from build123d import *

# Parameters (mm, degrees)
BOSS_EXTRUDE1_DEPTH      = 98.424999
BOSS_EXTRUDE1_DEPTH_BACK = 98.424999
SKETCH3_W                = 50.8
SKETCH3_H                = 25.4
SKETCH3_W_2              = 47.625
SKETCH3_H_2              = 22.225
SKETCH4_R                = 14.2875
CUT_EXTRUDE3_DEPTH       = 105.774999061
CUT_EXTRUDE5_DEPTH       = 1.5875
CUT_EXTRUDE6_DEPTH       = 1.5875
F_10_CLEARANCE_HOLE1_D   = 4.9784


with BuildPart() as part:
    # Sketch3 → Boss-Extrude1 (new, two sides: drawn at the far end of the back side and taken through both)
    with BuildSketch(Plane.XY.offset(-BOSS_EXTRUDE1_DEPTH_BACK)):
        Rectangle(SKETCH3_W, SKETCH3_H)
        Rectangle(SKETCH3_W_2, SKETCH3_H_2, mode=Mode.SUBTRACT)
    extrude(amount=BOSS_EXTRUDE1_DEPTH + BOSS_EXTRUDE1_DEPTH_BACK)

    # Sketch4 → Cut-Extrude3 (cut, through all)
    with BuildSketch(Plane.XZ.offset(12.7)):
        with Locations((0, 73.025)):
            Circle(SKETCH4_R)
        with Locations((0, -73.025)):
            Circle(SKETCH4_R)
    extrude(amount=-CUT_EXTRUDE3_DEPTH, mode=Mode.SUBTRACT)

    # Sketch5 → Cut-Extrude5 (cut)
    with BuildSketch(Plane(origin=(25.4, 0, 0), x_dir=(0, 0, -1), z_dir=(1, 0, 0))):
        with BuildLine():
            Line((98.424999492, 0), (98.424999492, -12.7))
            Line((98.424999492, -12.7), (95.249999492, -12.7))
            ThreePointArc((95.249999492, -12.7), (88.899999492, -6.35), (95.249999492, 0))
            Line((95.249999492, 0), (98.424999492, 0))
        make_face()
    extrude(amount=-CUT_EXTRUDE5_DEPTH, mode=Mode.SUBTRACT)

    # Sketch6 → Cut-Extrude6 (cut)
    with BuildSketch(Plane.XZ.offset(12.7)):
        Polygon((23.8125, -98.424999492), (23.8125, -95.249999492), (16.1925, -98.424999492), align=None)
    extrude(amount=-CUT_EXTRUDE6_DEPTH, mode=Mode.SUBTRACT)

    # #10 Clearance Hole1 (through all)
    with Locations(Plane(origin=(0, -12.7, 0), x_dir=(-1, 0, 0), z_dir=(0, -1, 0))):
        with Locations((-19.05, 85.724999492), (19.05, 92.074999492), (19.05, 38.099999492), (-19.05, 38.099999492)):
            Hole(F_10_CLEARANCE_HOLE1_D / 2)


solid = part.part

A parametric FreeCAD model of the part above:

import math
import FreeCAD as App
import Part
import Sketcher
from FreeCAD import Vector
Q = App.Units.Quantity

doc = App.newDocument("Part")
body = doc.addObject("PartDesign::Body", "Body")

sketch1 = body.newObject("Sketcher::SketchObject", "Sketch")
sketch1.AttachmentSupport = (doc.getObject("XY_Plane"), [""])
sketch1.MapMode = "FlatFace"
sketch1.addGeometry([
    Part.LineSegment(Vector(-25, 13, 0), Vector(-25, -13, 0)),
    Part.LineSegment(Vector(-25, -13, 0), Vector(25, -13, 0)),
    Part.LineSegment(Vector(25, -13, 0), Vector(25, 13, 0)),
    Part.LineSegment(Vector(25, 13, 0), Vector(-25, 13, 0)),
    Part.LineSegment(Vector(24, -11, 0), Vector(-24, -11, 0)),
    Part.LineSegment(Vector(-24, -11, 0), Vector(-24, 11, 0)),
    Part.LineSegment(Vector(-24, 11, 0), Vector(24, 11, 0)),
    Part.LineSegment(Vector(24, 11, 0), Vector(24, -11, 0)),
], False)
sketch1.addConstraint([
    Sketcher.Constraint("Coincident", 0, 2, 1, 1),
    Sketcher.Constraint("Coincident", 1, 2, 2, 1),
    Sketcher.Constraint("Coincident", 2, 2, 3, 1),
    Sketcher.Constraint("Coincident", 3, 2, 0, 1),
    Sketcher.Constraint("Coincident", 4, 2, 5, 1),
    Sketcher.Constraint("Coincident", 5, 2, 6, 1),
    Sketcher.Constraint("Coincident", 6, 2, 7, 1),
    Sketcher.Constraint("Coincident", 7, 2, 4, 1),
    Sketcher.Constraint("Vertical", 0),
    Sketcher.Constraint("Horizontal", 1),
    Sketcher.Constraint("Vertical", 2),
    Sketcher.Constraint("Horizontal", 3),
    Sketcher.Constraint("Horizontal", 4),
    Sketcher.Constraint("Vertical", 5),
    Sketcher.Constraint("Horizontal", 6),
    Sketcher.Constraint("Vertical", 7),
    Sketcher.Constraint("Symmetric", 0, 2, 2, 2, -1, 1),
    Sketcher.Constraint("Symmetric", 4, 2, 6, 2, -1, 1),
    Sketcher.Constraint("DistanceX", 1, 1, 1, 2, Q("2 in")),
    Sketcher.Constraint("DistanceY", 0, 2, 0, 1, Q("1 in")),
    Sketcher.Constraint("DistanceX", 4, 2, 4, 1, Q("1.875 in")),
    Sketcher.Constraint("DistanceY", 5, 1, 5, 2, Q("0.875 in")),
])
pad1 = body.newObject("PartDesign::Pad", "Pad")
pad1.Profile = sketch1
pad1.Type = "TwoLengths"
pad1.Length = Q("3.875 in")
pad1.Length2 = Q("3.875 in")

sketch2 = body.newObject("Sketcher::SketchObject", "Sketch001")
sketch2.AttachmentSupport = (doc.getObject("XZ_Plane"), [""])
sketch2.MapMode = "FlatFace"
sketch2.AttachmentOffset = App.Placement(Vector(0, 0, 0.5 * 25.4), App.Rotation())
sketch2.addGeometry([
    Part.Circle(Vector(0, 73, 0), Vector(0, 0, 1), 14),
    Part.Circle(Vector(0, -73, 0), Vector(0, 0, 1), 14),
], False)
sketch2.addConstraint([
    Sketcher.Constraint("Equal", 0, 1),
    Sketcher.Constraint("Symmetric", 0, 3, 1, 3, -1, 1),
    Sketcher.Constraint("PointOnObject", 0, 3, -2),
    Sketcher.Constraint("Diameter", 0, Q("1.125 in")),
    Sketcher.Constraint("DistanceY", 1, 3, 0, 3, Q("5.75 in")),
])
pocket1 = body.newObject("PartDesign::Pocket", "Pocket")
pocket1.Profile = sketch2
pocket1.Type = "ThroughAll"

sketch3 = body.newObject("Sketcher::SketchObject", "Sketch002")
sketch3.AttachmentSupport = (doc.getObject("YZ_Plane"), [""])
sketch3.MapMode = "FlatFace"
sketch3.AttachmentOffset = App.Placement(Vector(0, 0, 1 * 25.4), App.Rotation())
sketch3.addGeometry([
    Part.LineSegment(Vector(-12.7, -98.4, 0), Vector(0, -98.4, 0)),
    Part.LineSegment(Vector(0, -98.4, 0), Vector(0, -95.2, 0)),
    Part.ArcOfCircle(Part.Circle(Vector(-6.3, -95.2, 0), Vector(0, 0, 1), 6.3), math.radians(0), math.radians(180)),
    Part.LineSegment(Vector(-12.7, -95.2, 0), Vector(-12.7, -98.4, 0)),
], False)
sketch3.addConstraint([
    Sketcher.Constraint("Coincident", 0, 2, 1, 1),
    Sketcher.Constraint("Tangent", 1, 2, 2, 1),
    Sketcher.Constraint("Tangent", 2, 2, 3, 1),
    Sketcher.Constraint("Coincident", 3, 2, 0, 1),
    Sketcher.Constraint("Horizontal", 0),
    Sketcher.Constraint("Vertical", 1),
    Sketcher.Constraint("Vertical", 3),
    Sketcher.Constraint("PointOnObject", 0, 2, -2),
    Sketcher.Constraint("Radius", 2, Q("0.25 in")),
    Sketcher.Constraint("DistanceY", 1, 1, 1, 2, Q("0.125 in")),
    Sketcher.Constraint("DistanceY", 2, 3, -1, 1, Q("3.75 in")),
])
pocket2 = body.newObject("PartDesign::Pocket", "Pocket001")
pocket2.Profile = sketch3
pocket2.Length = Q("0.0625 in")

sketch4 = body.newObject("Sketcher::SketchObject", "Sketch003")
sketch4.AttachmentSupport = (doc.getObject("XZ_Plane"), [""])
sketch4.MapMode = "FlatFace"
sketch4.AttachmentOffset = App.Placement(Vector(0, 0, 0.5 * 25.4), App.Rotation())
sketch4.addGeometry([
    Part.LineSegment(Vector(23.8, -98.4, 0), Vector(23.8, -95.2, 0)),
    Part.LineSegment(Vector(23.8, -95.2, 0), Vector(16.2, -98.4, 0)),
    Part.LineSegment(Vector(16.2, -98.4, 0), Vector(23.8, -98.4, 0)),
], False)
sketch4.addConstraint([
    Sketcher.Constraint("Coincident", 0, 2, 1, 1),
    Sketcher.Constraint("Coincident", 1, 2, 2, 1),
    Sketcher.Constraint("Coincident", 2, 2, 0, 1),
    Sketcher.Constraint("Vertical", 0),
    Sketcher.Constraint("Horizontal", 2),
    Sketcher.Constraint("DistanceX", 2, 1, 2, 2, Q("0.3 in")),
    Sketcher.Constraint("DistanceY", 0, 1, 0, 2, Q("0.125 in")),
    Sketcher.Constraint("DistanceY", 0, 2, -1, 1, Q("3.75 in")),
    Sketcher.Constraint("DistanceX", -1, 1, 0, 2, Q("0.9375 in")),
])
pocket3 = body.newObject("PartDesign::Pocket", "Pocket002")
pocket3.Profile = sketch4
pocket3.Length = Q("0.0625 in")

sketch5 = body.newObject("Sketcher::SketchObject", "Sketch004")
sketch5.AttachmentSupport = (doc.getObject("XZ_Plane"), [""])
sketch5.MapMode = "FlatFace"
sketch5.AttachmentOffset = App.Placement(Vector(0, 0, 0.5 * 25.4), App.Rotation())
sketch5.addGeometry([
    Part.Circle(Vector(19.1, -85.7, 0), Vector(0, 0, 1), 2.5),
    Part.Circle(Vector(-19.1, -92.1, 0), Vector(0, 0, 1), 2.5),
    Part.Circle(Vector(-19.1, -38.1, 0), Vector(0, 0, 1), 2.5),
    Part.Circle(Vector(19.1, -38.1, 0), Vector(0, 0, 1), 2.5),
], False)
sketch5.addConstraint([
    Sketcher.Constraint("Equal", 0, 1),
    Sketcher.Constraint("Equal", 1, 2),
    Sketcher.Constraint("Equal", 2, 3),
    Sketcher.Constraint("Symmetric", 2, 3, 3, 3, -2),
    Sketcher.Constraint("Vertical", 1, 3, 2, 3),
    Sketcher.Constraint("Vertical", 0, 3, 3, 3),
    Sketcher.Constraint("Diameter", 0, Q("0.196 in")),
    Sketcher.Constraint("DistanceY", 2, 3, -1, 1, Q("1.5 in")),
    Sketcher.Constraint("DistanceX", 1, 3, 0, 3, Q("1.5 in")),
    Sketcher.Constraint("DistanceY", 1, 3, 0, 3, Q("0.25 in")),
    Sketcher.Constraint("DistanceY", 0, 3, -1, 1, Q("3.375 in")),
])
doc.recompute()
hole = body.newObject("PartDesign::Hole", "Hole")
hole.Profile = sketch5
hole.ThreadType = "None"
hole.Diameter = Q("0.196 in")
hole.DepthType = "ThroughAll"

doc.recompute()
